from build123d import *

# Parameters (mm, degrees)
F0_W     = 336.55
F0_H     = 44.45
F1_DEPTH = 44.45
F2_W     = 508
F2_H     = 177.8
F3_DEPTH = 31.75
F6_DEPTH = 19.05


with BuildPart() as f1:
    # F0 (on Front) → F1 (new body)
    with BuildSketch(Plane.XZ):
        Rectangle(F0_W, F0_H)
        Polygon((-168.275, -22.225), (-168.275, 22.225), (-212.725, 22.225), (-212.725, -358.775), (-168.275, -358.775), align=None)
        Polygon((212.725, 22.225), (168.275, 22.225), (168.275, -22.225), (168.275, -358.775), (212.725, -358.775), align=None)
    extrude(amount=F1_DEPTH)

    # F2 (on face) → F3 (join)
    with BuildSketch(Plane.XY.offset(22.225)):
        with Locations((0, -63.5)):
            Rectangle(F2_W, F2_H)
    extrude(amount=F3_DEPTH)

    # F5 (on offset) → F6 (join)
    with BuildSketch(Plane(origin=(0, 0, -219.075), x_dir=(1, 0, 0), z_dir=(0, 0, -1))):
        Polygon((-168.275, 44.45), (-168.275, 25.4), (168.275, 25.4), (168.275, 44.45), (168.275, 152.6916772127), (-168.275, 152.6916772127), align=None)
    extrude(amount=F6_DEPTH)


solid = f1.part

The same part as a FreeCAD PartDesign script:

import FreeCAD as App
import Part
import Sketcher
from FreeCAD import Vector
Q = App.Units.Quantity


def add_polygon(sketch, points):
    """Adds a closed chain of lines whose ends are joined by coincident constraints."""
    first, n = sketch.GeometryCount, len(points)
    for a, b in zip(points, points[1:] + points[:1]):
        sketch.addGeometry(Part.LineSegment(App.Vector(*a, 0), App.Vector(*b, 0)), False)
    for i in range(n):
        sketch.addConstraint(Sketcher.Constraint("Coincident", first + i, 2, first + (i + 1) % n, 1))

doc = App.newDocument("Part")
body = doc.addObject("PartDesign::Body", "Body")

# Sketch on XZ plane
sketch1 = body.newObject("Sketcher::SketchObject", "Sketch")
sketch1.AttachmentSupport = (doc.getObject("XZ_Plane"), [""])
sketch1.MapMode = "FlatFace"
add_polygon(sketch1, [(-168, -22), (168, -22), (168, -359), (213, -359), (213, 22), (-213, 22), (-213, -359), (-168, -359)])  # lines 0-7
sketch1.addConstraint([
    Sketcher.Constraint("Horizontal", 0),
    Sketcher.Constraint("Vertical", 1),
    Sketcher.Constraint("Horizontal", 2),
    Sketcher.Constraint("Vertical", 3),
    Sketcher.Constraint("Horizontal", 4),
    Sketcher.Constraint("Vertical", 5),
    Sketcher.Constraint("Horizontal", 6),
    Sketcher.Constraint("Vertical", 7),
    Sketcher.Constraint("Symmetric", 2, 2, 5, 2, -2),
    Sketcher.Constraint("Equal", 2, 6),
    Sketcher.Constraint("Equal", 0, 1),
    Sketcher.Constraint("DistanceY", 3, 1, 3, 2, Q("15 in")),
    Sketcher.Constraint("DistanceX", 4, 2, 0, 2, Q("15 in")),
    Sketcher.Constraint("DistanceX", 0, 1, 0, 2, Q("13.25 in")),
    Sketcher.Constraint("DistanceY", 0, 2, -1, 1, Q("0.875 in")),
])
pad1 = body.newObject("PartDesign::Pad", "Pad")
pad1.Profile = sketch1
pad1.Length = Q("1.75 in")

# Sketch on XY plane
sketch2 = body.newObject("Sketcher::SketchObject", "Sketch001")
sketch2.AttachmentSupport = (doc.getObject("XY_Plane"), [""])
sketch2.MapMode = "FlatFace"
sketch2.AttachmentOffset = App.Placement(Vector(0, 0, 0.875 * 25.4), App.Rotation())
add_polygon(sketch2, [(-254, 25), (-254, -152), (254, -152), (254, 25)])  # lines 0-3
sketch2.addConstraint([
    Sketcher.Constraint("Vertical", 0),
    Sketcher.Constraint("Horizontal", 1),
    Sketcher.Constraint("Vertical", 2),
    Sketcher.Constraint("Horizontal", 3),
    Sketcher.Constraint("DistanceX", 1, 1, 1, 2, Q("20 in")),
    Sketcher.Constraint("DistanceY", 0, 2, 0, 1, Q("7 in")),
    Sketcher.Constraint("DistanceX", 0, 2, -1, 1, Q("10 in")),
    Sketcher.Constraint("DistanceY", 0, 2, -1, 1, Q("6 in")),
])
pad2 = body.newObject("PartDesign::Pad", "Pad001")
pad2.Profile = sketch2
pad2.Length = Q("1.25 in")

# Sketch on XY plane
sketch3 = body.newObject("Sketcher::SketchObject", "Sketch002")
sketch3.AttachmentSupport = (doc.getObject("XY_Plane"), [""])
sketch3.MapMode = "FlatFace"
sketch3.AttachmentOffset = App.Placement(Vector(0, 0, -8.625 * 25.4), App.Rotation())
add_polygon(sketch3, [(-168, -25), (168, -25), (168, -153), (-168, -153)])  # lines 0-3
sketch3.addConstraint([
    Sketcher.Constraint("Horizontal", 0),
    Sketcher.Constraint("Vertical", 1),
    Sketcher.Constraint("Horizontal", 2),
    Sketcher.Constraint("Vertical", 3),
    Sketcher.Constraint("DistanceY", 0, 2, -1, 1, Q("1 in")),
    Sketcher.Constraint("DistanceX", 0, 1, 0, 2, Q("13.25 in")),
    Sketcher.Constraint("DistanceX", -1, 1, 0, 2, Q("6.625 in")),
    Sketcher.Constraint("DistanceY", 1, 2, 1, 1, Q("127.291677 mm")),
])
pad3 = body.newObject("PartDesign::Pad", "Pad002")
pad3.Profile = sketch3
pad3.Length = Q("0.75 in")
pad3.Reversed = True

doc.recompute()
